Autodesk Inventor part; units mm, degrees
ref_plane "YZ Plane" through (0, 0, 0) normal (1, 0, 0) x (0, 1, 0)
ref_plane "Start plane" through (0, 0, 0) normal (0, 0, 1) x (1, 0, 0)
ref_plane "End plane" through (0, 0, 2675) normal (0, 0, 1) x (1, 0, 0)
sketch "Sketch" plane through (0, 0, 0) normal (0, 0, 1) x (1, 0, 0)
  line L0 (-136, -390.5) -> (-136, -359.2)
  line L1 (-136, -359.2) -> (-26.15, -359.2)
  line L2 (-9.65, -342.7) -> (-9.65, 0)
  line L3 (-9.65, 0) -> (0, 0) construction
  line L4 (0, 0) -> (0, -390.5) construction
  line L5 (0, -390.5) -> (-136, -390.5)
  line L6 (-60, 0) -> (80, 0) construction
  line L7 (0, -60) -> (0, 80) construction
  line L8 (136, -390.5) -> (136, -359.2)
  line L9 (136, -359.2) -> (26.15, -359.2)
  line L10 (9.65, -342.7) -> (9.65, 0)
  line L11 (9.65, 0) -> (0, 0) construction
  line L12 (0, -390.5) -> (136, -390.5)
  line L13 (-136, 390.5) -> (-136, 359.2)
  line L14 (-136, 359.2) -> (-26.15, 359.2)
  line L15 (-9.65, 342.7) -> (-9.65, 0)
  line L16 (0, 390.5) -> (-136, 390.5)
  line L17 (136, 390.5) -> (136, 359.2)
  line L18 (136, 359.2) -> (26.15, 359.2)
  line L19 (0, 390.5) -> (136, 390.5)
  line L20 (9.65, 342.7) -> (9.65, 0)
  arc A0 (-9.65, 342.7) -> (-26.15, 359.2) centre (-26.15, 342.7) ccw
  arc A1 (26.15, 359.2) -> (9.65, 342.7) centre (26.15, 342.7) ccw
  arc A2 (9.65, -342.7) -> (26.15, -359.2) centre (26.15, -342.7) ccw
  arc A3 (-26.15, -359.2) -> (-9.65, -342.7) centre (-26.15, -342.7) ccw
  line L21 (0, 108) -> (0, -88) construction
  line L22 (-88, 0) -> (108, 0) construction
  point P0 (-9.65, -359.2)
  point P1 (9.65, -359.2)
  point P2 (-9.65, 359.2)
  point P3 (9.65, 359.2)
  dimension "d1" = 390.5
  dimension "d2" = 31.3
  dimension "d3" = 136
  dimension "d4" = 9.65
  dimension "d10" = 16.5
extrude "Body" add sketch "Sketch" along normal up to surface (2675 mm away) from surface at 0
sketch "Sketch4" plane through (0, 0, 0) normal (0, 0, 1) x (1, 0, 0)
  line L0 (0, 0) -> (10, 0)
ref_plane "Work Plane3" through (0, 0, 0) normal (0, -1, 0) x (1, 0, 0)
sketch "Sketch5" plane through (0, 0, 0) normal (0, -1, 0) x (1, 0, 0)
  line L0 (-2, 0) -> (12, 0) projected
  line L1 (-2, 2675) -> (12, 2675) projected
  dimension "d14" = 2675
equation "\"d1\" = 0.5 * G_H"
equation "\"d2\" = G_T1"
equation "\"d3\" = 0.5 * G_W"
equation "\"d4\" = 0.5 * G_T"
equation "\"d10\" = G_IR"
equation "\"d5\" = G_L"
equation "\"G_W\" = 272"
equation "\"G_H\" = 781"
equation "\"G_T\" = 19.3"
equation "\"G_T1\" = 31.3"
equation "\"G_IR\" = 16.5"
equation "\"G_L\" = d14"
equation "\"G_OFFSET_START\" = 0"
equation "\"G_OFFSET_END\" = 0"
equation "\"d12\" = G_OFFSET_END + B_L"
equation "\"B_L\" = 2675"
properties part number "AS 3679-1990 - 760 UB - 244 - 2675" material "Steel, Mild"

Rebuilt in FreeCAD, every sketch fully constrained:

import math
import FreeCAD as App
import Part
import Sketcher

V = App.Vector

doc = App.newDocument("Part")
body = doc.addObject("PartDesign::Body", "Body")

# Sketch on XY plane
sketch1 = doc.addObject("Sketcher::SketchObject", "Sketch")
body.addObject(sketch1)
sketch1.AttachmentSupport = (doc.XY_Plane, [""])
sketch1.MapMode = "FlatFace"
sketch1.addGeometry([
    Part.LineSegment(V(-136, -359, 0), V(-136, -390, 0)),  # 0
    Part.LineSegment(V(-136, -390, 0), V(136, -390, 0)),  # 1
    Part.LineSegment(V(136, -390, 0), V(136, -359, 0)),  # 2
    Part.LineSegment(V(136, -359, 0), V(26, -359, 0)),  # 3
    Part.ArcOfCircle(Part.Circle(V(26, -343, 0), V(0, 0, 1), 16), math.radians(180), math.radians(270)),  # 4
    Part.LineSegment(V(10, -343, 0), V(10, 343, 0)),  # 5
    Part.ArcOfCircle(Part.Circle(V(26, 343, 0), V(0, 0, 1), 16), math.radians(90), math.radians(180)),  # 6
    Part.LineSegment(V(26, 359, 0), V(136, 359, 0)),  # 7
    Part.LineSegment(V(136, 359, 0), V(136, 390, 0)),  # 8
    Part.LineSegment(V(136, 390, 0), V(-136, 390, 0)),  # 9
    Part.LineSegment(V(-136, 390, 0), V(-136, 359, 0)),  # 10
    Part.LineSegment(V(-136, 359, 0), V(-26, 359, 0)),  # 11
    Part.ArcOfCircle(Part.Circle(V(-26, 343, 0), V(0, 0, 1), 16), math.radians(0), math.radians(90)),  # 12
    Part.LineSegment(V(-10, 343, 0), V(-10, -343, 0)),  # 13
    Part.ArcOfCircle(Part.Circle(V(-26, -343, 0), V(0, 0, 1), 16), math.radians(-90), math.radians(0)),  # 14
    Part.LineSegment(V(-26, -359, 0), V(-136, -359, 0)),  # 15
], False)
sketch1.addConstraint([
    Sketcher.Constraint("Coincident", 0, 2, 1, 1),
    Sketcher.Constraint("Coincident", 1, 2, 2, 1),
    Sketcher.Constraint("Coincident", 2, 2, 3, 1),
    Sketcher.Constraint("Tangent", 3, 2, 4, 2),
    Sketcher.Constraint("Tangent", 4, 1, 5, 1),
    Sketcher.Constraint("Tangent", 5, 2, 6, 2),
    Sketcher.Constraint("Tangent", 6, 1, 7, 1),
    Sketcher.Constraint("Coincident", 7, 2, 8, 1),
    Sketcher.Constraint("Coincident", 8, 2, 9, 1),
    Sketcher.Constraint("Coincident", 9, 2, 10, 1),
    Sketcher.Constraint("Coincident", 10, 2, 11, 1),
    Sketcher.Constraint("Tangent", 11, 2, 12, 2),
    Sketcher.Constraint("Tangent", 12, 1, 13, 1),
    Sketcher.Constraint("Tangent", 13, 2, 14, 2),
    Sketcher.Constraint("Tangent", 14, 1, 15, 1),
    Sketcher.Constraint("Coincident", 15, 2, 0, 1),
    Sketcher.Constraint("Vertical", 0),
    Sketcher.Constraint("Horizontal", 1),
    Sketcher.Constraint("Vertical", 2),
    Sketcher.Constraint("Horizontal", 3),
    Sketcher.Constraint("Vertical", 5),
    Sketcher.Constraint("Horizontal", 7),
    Sketcher.Constraint("Vertical", 8),
    Sketcher.Constraint("Horizontal", 9),
    Sketcher.Constraint("Vertical", 10),
    Sketcher.Constraint("Horizontal", 11),
    Sketcher.Constraint("Vertical", 13),
    Sketcher.Constraint("Horizontal", 15),
    Sketcher.Constraint("Equal", 4, 6),
    Sketcher.Constraint("Equal", 6, 12),
    Sketcher.Constraint("Equal", 12, 14),
    Sketcher.Constraint("Symmetric", 4, 3, 12, 3, -1, 1),
    Sketcher.Constraint("Symmetric", 0, 2, 8, 2, -1, 1),
    Sketcher.Constraint("Symmetric", 7, 2, 10, 2, -2),
    Sketcher.Constraint("Symmetric", 2, 2, 15, 2, -2),
    Sketcher.Constraint("Radius", 4, 16.5),
    Sketcher.Constraint("DistanceY", 0, 2, 0, 1, 31.3),
    Sketcher.Constraint("DistanceX", 0, 2, -1, 1, 136.0),
    Sketcher.Constraint("DistanceY", 0, 2, -1, 1, 390.5),
    Sketcher.Constraint("DistanceX", -1, 1, 4, 1, 9.65),
])
pad1 = doc.addObject("PartDesign::Pad", "Pad")
body.addObject(pad1)
pad1.Profile = sketch1
pad1.Length = 2675

doc.recompute()
